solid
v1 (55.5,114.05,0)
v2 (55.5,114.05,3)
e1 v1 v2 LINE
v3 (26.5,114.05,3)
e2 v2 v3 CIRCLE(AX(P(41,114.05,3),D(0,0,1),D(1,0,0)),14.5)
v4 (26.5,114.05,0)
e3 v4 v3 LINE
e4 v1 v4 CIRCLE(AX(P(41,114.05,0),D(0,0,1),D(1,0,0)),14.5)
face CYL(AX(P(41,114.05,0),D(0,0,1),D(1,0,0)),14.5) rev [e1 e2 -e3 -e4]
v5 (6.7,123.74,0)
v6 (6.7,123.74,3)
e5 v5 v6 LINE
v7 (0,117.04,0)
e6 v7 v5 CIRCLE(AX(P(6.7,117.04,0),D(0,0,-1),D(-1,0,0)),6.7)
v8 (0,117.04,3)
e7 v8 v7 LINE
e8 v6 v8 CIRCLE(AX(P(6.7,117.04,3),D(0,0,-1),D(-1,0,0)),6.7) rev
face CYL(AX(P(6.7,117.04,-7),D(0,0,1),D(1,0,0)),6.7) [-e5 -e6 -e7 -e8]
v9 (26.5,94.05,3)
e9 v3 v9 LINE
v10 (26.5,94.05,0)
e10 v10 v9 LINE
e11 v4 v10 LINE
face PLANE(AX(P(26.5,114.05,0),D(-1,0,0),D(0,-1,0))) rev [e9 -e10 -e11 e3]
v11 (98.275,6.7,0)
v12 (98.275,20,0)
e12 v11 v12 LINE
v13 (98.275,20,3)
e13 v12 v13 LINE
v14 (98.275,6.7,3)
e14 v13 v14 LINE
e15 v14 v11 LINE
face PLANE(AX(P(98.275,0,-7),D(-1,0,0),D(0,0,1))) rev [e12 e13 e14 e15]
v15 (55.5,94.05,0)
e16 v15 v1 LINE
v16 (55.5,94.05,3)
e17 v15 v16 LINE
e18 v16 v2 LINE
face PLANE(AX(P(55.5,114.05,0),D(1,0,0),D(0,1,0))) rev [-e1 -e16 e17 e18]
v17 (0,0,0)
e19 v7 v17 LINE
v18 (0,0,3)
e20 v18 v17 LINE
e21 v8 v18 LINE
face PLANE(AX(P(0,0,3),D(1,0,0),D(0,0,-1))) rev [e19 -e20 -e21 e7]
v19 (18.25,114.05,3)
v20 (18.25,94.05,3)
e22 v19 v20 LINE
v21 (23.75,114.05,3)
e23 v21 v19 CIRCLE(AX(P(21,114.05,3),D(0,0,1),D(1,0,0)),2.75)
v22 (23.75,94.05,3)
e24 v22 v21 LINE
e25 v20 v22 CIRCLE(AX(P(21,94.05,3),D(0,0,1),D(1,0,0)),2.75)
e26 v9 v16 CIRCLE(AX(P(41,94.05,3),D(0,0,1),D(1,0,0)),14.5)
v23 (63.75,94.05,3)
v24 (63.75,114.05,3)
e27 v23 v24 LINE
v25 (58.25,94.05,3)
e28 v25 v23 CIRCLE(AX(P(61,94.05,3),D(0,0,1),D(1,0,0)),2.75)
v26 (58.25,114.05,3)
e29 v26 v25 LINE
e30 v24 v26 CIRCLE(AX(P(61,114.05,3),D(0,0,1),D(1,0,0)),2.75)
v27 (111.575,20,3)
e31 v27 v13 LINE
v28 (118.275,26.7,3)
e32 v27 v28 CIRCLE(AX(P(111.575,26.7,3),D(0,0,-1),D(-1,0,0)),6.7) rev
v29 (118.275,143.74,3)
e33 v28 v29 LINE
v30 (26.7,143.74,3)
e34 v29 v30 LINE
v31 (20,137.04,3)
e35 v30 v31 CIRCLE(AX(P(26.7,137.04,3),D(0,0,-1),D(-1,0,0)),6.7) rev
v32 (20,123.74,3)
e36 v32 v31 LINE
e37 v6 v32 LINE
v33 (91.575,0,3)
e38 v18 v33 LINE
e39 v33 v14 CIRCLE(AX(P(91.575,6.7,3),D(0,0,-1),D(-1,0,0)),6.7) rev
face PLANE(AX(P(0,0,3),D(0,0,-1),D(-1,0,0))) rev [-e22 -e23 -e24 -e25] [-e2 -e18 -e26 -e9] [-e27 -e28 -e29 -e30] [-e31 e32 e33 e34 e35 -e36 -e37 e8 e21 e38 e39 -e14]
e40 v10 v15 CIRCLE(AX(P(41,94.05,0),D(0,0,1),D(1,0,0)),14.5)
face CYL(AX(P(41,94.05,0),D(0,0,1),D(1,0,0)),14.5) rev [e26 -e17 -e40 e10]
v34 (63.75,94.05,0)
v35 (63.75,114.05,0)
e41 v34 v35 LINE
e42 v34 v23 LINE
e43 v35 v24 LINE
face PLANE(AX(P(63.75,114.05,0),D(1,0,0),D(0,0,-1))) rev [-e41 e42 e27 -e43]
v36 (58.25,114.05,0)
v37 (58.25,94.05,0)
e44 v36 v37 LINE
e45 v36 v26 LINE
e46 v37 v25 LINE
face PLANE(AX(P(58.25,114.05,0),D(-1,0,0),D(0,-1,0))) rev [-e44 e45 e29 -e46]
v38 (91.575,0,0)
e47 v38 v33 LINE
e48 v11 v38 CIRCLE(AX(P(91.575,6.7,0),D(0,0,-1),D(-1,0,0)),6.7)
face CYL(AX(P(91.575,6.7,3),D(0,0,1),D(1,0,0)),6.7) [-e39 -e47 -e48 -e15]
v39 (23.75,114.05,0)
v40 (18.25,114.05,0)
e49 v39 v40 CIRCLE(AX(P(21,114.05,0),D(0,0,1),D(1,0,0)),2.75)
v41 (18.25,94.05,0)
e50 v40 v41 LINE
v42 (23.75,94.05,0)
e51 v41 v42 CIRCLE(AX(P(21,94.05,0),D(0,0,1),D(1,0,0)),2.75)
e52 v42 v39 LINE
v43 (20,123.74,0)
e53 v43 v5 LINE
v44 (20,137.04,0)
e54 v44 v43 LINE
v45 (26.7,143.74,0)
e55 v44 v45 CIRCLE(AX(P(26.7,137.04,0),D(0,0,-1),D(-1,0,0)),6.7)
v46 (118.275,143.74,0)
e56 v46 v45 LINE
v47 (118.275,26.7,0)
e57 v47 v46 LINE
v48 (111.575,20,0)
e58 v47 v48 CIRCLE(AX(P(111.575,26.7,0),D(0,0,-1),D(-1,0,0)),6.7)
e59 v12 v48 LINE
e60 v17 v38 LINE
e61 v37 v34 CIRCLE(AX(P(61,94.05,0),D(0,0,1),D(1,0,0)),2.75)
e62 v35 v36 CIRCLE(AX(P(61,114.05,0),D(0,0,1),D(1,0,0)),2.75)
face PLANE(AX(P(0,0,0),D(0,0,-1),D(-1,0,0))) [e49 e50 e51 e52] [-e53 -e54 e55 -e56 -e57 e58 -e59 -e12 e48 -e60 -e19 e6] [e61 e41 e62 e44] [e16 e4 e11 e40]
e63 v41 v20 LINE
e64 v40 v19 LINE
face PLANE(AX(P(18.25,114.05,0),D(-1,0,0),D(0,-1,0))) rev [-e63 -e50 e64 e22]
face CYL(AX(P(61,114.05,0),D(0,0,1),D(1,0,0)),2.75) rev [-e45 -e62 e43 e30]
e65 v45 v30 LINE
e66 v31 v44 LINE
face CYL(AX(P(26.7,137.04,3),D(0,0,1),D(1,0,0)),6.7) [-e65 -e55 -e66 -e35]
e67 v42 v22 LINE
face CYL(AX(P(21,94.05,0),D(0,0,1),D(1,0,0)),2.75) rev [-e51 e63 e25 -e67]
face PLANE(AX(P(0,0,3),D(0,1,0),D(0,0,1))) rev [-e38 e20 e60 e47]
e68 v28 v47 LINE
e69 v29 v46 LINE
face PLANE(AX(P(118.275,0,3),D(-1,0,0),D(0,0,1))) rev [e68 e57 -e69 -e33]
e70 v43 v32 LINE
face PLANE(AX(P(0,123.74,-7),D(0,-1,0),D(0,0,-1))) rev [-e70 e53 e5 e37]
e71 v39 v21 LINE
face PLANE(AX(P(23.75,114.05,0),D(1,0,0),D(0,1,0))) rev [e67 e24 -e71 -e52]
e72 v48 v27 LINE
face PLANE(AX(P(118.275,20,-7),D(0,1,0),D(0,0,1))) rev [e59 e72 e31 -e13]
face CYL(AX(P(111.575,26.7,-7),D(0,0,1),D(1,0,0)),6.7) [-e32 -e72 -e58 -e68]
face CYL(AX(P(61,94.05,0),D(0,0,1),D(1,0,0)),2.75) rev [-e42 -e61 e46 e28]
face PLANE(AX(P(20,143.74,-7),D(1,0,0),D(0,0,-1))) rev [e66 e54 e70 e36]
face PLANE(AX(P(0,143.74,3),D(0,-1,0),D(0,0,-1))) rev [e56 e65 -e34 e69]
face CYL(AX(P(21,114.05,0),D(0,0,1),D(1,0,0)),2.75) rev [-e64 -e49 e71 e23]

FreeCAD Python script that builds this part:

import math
import FreeCAD as App
import Part
import Sketcher

V = App.Vector


def edges_at(feature, points):
    """Names of the edges that pass closest to the given points."""
    edges = feature.Shape.Edges
    near = lambda p: min(range(len(edges)), key=lambda i: edges[i].distToShape(Part.Vertex(*p))[0])
    return sorted({f"Edge{near(p) + 1}" for p in points})


def add_polygon(sketch, points):
    """Adds a closed chain of lines whose ends are joined by coincident constraints."""
    first, n = sketch.GeometryCount, len(points)
    for a, b in zip(points, points[1:] + points[:1]):
        sketch.addGeometry(Part.LineSegment(App.Vector(*a, 0), App.Vector(*b, 0)), False)
    for i in range(n):
        sketch.addConstraint(Sketcher.Constraint("Coincident", first + i, 2, first + (i + 1) % n, 1))

doc = App.newDocument("Part")
body = doc.addObject("PartDesign::Body", "Body")

# Sketch on XY plane
sketch1 = doc.addObject("Sketcher::SketchObject", "Sketch")
body.addObject(sketch1)
sketch1.AttachmentSupport = (doc.XY_Plane, [""])
sketch1.MapMode = "FlatFace"
add_polygon(sketch1, [(0, 144), (0, 0), (118, 0), (118, 144)])  # lines 0-3
sketch1.addConstraint(Sketcher.Constraint("Vertical", 0))
sketch1.addConstraint(Sketcher.Constraint("Horizontal", 1))
sketch1.addConstraint(Sketcher.Constraint("Vertical", 2))
sketch1.addConstraint(Sketcher.Constraint("Horizontal", 3))
sketch1.addConstraint(Sketcher.Constraint("Coincident", 0, 2, -1, 1))
sketch1.addConstraint(Sketcher.Constraint("DistanceY", 0, 2, 0, 1, 143.74))
sketch1.addConstraint(Sketcher.Constraint("DistanceX", 1, 1, 1, 2, 118.275))
pad1 = doc.addObject("PartDesign::Pad", "Pad")
body.addObject(pad1)
pad1.Profile = sketch1
pad1.Length = 3

# Sketch on XY plane
sketch2 = doc.addObject("Sketcher::SketchObject", "Sketch001")
body.addObject(sketch2)
sketch2.AttachmentSupport = (doc.XY_Plane, [""])
sketch2.MapMode = "FlatFace"
sketch2.AttachmentOffset = App.Placement(V(0, 0, 3), App.Rotation())
sketch2.addGeometry(Part.LineSegment(V(55.5, 94, 0), V(55.5, 114, 0)), False)
sketch2.addGeometry(Part.ArcOfCircle(Part.Circle(V(41, 114, 0), V(0, 0, 1), 14.5), math.radians(0), math.radians(180)), False)
sketch2.addGeometry(Part.LineSegment(V(26.5, 114, 0), V(26.5, 94, 0)), False)
sketch2.addGeometry(Part.ArcOfCircle(Part.Circle(V(41, 94, 0), V(0, 0, 1), 14.5), math.radians(180), math.radians(360)), False)
sketch2.addGeometry(Part.LineSegment(V(63.8, 94, 0), V(63.8, 114, 0)), False)
sketch2.addGeometry(Part.ArcOfCircle(Part.Circle(V(61, 114, 0), V(0, 0, 1), 2.8), math.radians(0), math.radians(180)), False)
sketch2.addGeometry(Part.LineSegment(V(58.2, 114, 0), V(58.2, 94, 0)), False)
sketch2.addGeometry(Part.ArcOfCircle(Part.Circle(V(61, 94, 0), V(0, 0, 1), 2.8), math.radians(180), math.radians(360)), False)
sketch2.addGeometry(Part.LineSegment(V(23.8, 94, 0), V(23.8, 114, 0)), False)
sketch2.addGeometry(Part.ArcOfCircle(Part.Circle(V(21, 114, 0), V(0, 0, 1), 2.8), math.radians(0), math.radians(180)), False)
sketch2.addGeometry(Part.LineSegment(V(18.2, 114, 0), V(18.2, 94, 0)), False)
sketch2.addGeometry(Part.ArcOfCircle(Part.Circle(V(21, 94, 0), V(0, 0, 1), 2.8), math.radians(180), math.radians(360)), False)
sketch2.addConstraint(Sketcher.Constraint("Tangent", 0, 2, 1, 1))
sketch2.addConstraint(Sketcher.Constraint("Tangent", 1, 2, 2, 1))
sketch2.addConstraint(Sketcher.Constraint("Tangent", 2, 2, 3, 1))
sketch2.addConstraint(Sketcher.Constraint("Tangent", 3, 2, 0, 1))
sketch2.addConstraint(Sketcher.Constraint("Tangent", 4, 2, 5, 1))
sketch2.addConstraint(Sketcher.Constraint("Tangent", 5, 2, 6, 1))
sketch2.addConstraint(Sketcher.Constraint("Tangent", 6, 2, 7, 1))
sketch2.addConstraint(Sketcher.Constraint("Tangent", 7, 2, 4, 1))
sketch2.addConstraint(Sketcher.Constraint("Tangent", 8, 2, 9, 1))
sketch2.addConstraint(Sketcher.Constraint("Tangent", 9, 2, 10, 1))
sketch2.addConstraint(Sketcher.Constraint("Tangent", 10, 2, 11, 1))
sketch2.addConstraint(Sketcher.Constraint("Tangent", 11, 2, 8, 1))
sketch2.addConstraint(Sketcher.Constraint("Vertical", 0))
sketch2.addConstraint(Sketcher.Constraint("Vertical", 2))
sketch2.addConstraint(Sketcher.Constraint("Vertical", 4))
sketch2.addConstraint(Sketcher.Constraint("Vertical", 6))
sketch2.addConstraint(Sketcher.Constraint("Vertical", 8))
sketch2.addConstraint(Sketcher.Constraint("Vertical", 10))
sketch2.addConstraint(Sketcher.Constraint("Equal", 7, 9))
sketch2.addConstraint(Sketcher.Constraint("Horizontal", 1, 3, 5, 3))
sketch2.addConstraint(Sketcher.Constraint("Horizontal", 3, 3, 7, 3))
sketch2.addConstraint(Sketcher.Constraint("Horizontal", 5, 3, 9, 3))
sketch2.addConstraint(Sketcher.Constraint("Horizontal", 7, 3, 11, 3))
sketch2.addConstraint(Sketcher.Constraint("Radius", 1, 14.5))
sketch2.addConstraint(Sketcher.Constraint("DistanceY", 0, 1, 0, 2, 20.0))
sketch2.addConstraint(Sketcher.Constraint("Radius", 5, 2.75))
sketch2.addConstraint(Sketcher.Constraint("DistanceX", -1, 1, 1, 3, 41.0))
sketch2.addConstraint(Sketcher.Constraint("DistanceX", -1, 1, 5, 3, 61.0))
sketch2.addConstraint(Sketcher.Constraint("DistanceX", -1, 1, 9, 3, 21.0))
sketch2.addConstraint(Sketcher.Constraint("DistanceY", -1, 1, 1, 3, 114.05))
pocket1 = doc.addObject("PartDesign::Pocket", "Pocket")
body.addObject(pocket1)
pocket1.Profile = sketch2
pocket1.Length = 3

# Sketch on XY plane
sketch3 = doc.addObject("Sketcher::SketchObject", "Sketch002")
body.addObject(sketch3)
sketch3.AttachmentSupport = (doc.XY_Plane, [""])
sketch3.MapMode = "FlatFace"
sketch3.AttachmentOffset = App.Placement(V(0, 0, 3), App.Rotation())
add_polygon(sketch3, [(0, 144), (0, 124), (20, 124), (20, 144)])  # lines 0-3
add_polygon(sketch3, [(98, 20), (98, 0), (118, 0), (118, 20)])  # lines 4-7
sketch3.addConstraint(Sketcher.Constraint("Vertical", 0))
sketch3.addConstraint(Sketcher.Constraint("Horizontal", 1))
sketch3.addConstraint(Sketcher.Constraint("Vertical", 2))
sketch3.addConstraint(Sketcher.Constraint("Horizontal", 3))
sketch3.addConstraint(Sketcher.Constraint("Vertical", 4))
sketch3.addConstraint(Sketcher.Constraint("Horizontal", 5))
sketch3.addConstraint(Sketcher.Constraint("Vertical", 6))
sketch3.addConstraint(Sketcher.Constraint("Horizontal", 7))
sketch3.addConstraint(Sketcher.Constraint("PointOnObject", 0, 2, -2))
sketch3.addConstraint(Sketcher.Constraint("PointOnObject", 4, 2, -1))
sketch3.addConstraint(Sketcher.Constraint("Equal", 3, 5))
sketch3.addConstraint(Sketcher.Constraint("Equal", 7, 0))
sketch3.addConstraint(Sketcher.Constraint("Equal", 2, 4))
sketch3.addConstraint(Sketcher.Constraint("DistanceX", 1, 1, 1, 2, 20.0))
sketch3.addConstraint(Sketcher.Constraint("DistanceY", -1, 1, 0, 2, 123.74))
sketch3.addConstraint(Sketcher.Constraint("DistanceX", -1, 1, 4, 2, 98.275))
pocket2 = doc.addObject("PartDesign::Pocket", "Pocket001")
body.addObject(pocket2)
pocket2.Profile = sketch3
pocket2.Length = 10
doc.recompute()

fillet = doc.addObject("PartDesign::Fillet", "Fillet")
body.addObject(fillet)
fillet.Base = (pocket2, edges_at(pocket2, [
    (0, 123.74, 1.5),
    (20, 143.74, 1.5),
    (118.275, 20, 1.5),
    (98.275, 0, 1.5),
]))
fillet.Radius = 6.7

doc.recompute()
